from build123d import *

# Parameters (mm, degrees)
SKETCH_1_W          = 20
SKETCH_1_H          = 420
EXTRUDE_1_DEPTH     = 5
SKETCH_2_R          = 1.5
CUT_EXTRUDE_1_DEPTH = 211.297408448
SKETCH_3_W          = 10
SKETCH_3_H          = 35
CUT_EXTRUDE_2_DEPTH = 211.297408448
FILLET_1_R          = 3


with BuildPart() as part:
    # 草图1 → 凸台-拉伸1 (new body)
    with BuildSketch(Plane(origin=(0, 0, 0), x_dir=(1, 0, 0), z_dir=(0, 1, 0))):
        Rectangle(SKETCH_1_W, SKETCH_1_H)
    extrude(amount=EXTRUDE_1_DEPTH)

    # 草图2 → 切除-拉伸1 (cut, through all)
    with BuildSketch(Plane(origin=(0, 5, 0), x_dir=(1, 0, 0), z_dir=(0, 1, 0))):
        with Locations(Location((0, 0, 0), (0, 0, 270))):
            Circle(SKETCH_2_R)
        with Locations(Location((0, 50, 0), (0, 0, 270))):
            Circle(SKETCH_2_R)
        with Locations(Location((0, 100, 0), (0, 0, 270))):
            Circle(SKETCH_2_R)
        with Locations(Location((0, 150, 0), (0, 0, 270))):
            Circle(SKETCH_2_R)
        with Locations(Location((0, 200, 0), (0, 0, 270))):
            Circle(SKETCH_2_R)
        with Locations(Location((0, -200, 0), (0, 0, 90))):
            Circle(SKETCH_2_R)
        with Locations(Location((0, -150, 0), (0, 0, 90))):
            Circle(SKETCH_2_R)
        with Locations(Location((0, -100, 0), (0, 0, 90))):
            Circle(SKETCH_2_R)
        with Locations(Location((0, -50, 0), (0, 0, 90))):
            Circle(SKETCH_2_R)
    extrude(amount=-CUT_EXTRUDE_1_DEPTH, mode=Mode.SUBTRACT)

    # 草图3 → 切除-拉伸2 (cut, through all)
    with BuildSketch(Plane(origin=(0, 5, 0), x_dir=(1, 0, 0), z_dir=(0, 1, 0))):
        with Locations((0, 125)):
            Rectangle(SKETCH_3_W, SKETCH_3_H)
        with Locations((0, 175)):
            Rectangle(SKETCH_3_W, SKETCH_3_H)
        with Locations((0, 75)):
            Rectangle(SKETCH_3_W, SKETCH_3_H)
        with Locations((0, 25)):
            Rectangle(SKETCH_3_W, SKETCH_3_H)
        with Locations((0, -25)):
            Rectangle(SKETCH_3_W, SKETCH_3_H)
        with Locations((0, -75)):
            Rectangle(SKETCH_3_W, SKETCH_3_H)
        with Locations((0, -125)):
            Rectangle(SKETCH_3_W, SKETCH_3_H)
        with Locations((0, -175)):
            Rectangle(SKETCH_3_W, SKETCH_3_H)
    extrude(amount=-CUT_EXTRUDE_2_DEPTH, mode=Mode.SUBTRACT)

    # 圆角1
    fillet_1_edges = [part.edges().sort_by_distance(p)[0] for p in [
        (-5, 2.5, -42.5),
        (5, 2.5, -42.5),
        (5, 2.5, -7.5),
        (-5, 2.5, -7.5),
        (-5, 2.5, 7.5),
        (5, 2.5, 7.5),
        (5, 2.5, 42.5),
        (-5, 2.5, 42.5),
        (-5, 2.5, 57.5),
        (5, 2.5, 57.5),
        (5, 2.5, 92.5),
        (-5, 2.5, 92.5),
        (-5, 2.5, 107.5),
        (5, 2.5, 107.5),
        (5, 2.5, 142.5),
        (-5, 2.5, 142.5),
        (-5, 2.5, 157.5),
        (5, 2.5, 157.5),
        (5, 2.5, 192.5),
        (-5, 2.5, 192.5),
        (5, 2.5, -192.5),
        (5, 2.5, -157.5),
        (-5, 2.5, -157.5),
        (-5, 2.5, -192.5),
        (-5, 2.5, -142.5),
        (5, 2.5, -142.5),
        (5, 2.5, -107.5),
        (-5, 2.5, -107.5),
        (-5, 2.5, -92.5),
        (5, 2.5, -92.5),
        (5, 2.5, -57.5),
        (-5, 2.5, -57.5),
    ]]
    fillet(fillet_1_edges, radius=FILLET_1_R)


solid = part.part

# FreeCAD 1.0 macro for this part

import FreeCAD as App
import Part
import Sketcher
from FreeCAD import Vector


def edges_at(feature, points):
    """Names of the edges that pass closest to the given points."""
    edges = feature.Shape.Edges
    near = lambda p: min(range(len(edges)), key=lambda i: edges[i].distToShape(Part.Vertex(*p))[0])
    return sorted({f"Edge{near(p) + 1}" for p in points})

doc = App.newDocument("Part")
body = doc.addObject("PartDesign::Body", "Body")

sketch1 = body.newObject("Sketcher::SketchObject", "Sketch")
sketch1.AttachmentSupport = (doc.getObject("XZ_Plane"), [""])
sketch1.MapMode = "FlatFace"
sketch1.addGeometry([
    Part.LineSegment(Vector(-10, -210, 0), Vector(-10, 210, 0)),
    Part.LineSegment(Vector(-10, 210, 0), Vector(10, 210, 0)),
    Part.LineSegment(Vector(10, 210, 0), Vector(10, -210, 0)),
    Part.LineSegment(Vector(10, -210, 0), Vector(-10, -210, 0)),
], False)
sketch1.addConstraint([
    Sketcher.Constraint("Coincident", 0, 2, 1, 1),
    Sketcher.Constraint("Coincident", 1, 2, 2, 1),
    Sketcher.Constraint("Coincident", 2, 2, 3, 1),
    Sketcher.Constraint("Coincident", 3, 2, 0, 1),
    Sketcher.Constraint("Vertical", 0),
    Sketcher.Constraint("Horizontal", 1),
    Sketcher.Constraint("Vertical", 2),
    Sketcher.Constraint("Horizontal", 3),
    Sketcher.Constraint("Symmetric", 0, 2, 2, 2, -1, 1),
    Sketcher.Constraint("DistanceX", 1, 1, 1, 2, 20.0),
    Sketcher.Constraint("DistanceY", 0, 1, 0, 2, 420.0),
])
pad1 = body.newObject("PartDesign::Pad", "Pad")
pad1.Profile = sketch1
pad1.Length = 5
pad1.Reversed = True

sketch2 = body.newObject("Sketcher::SketchObject", "Sketch001")
sketch2.AttachmentSupport = (doc.getObject("XZ_Plane"), [""])
sketch2.MapMode = "FlatFace"
sketch2.AttachmentOffset = App.Placement(Vector(0, 0, -5), App.Rotation())
sketch2.addGeometry([
    Part.Circle(Vector(0, 0, 0), Vector(0, 0, 1), 1.5),
    Part.Circle(Vector(0, -50, 0), Vector(0, 0, 1), 1.5),
    Part.Circle(Vector(0, -100, 0), Vector(0, 0, 1), 1.5),
    Part.Circle(Vector(0, -150, 0), Vector(0, 0, 1), 1.5),
    Part.Circle(Vector(0, -200, 0), Vector(0, 0, 1), 1.5),
    Part.Circle(Vector(0, 200, 0), Vector(0, 0, 1), 1.5),
    Part.Circle(Vector(0, 150, 0), Vector(0, 0, 1), 1.5),
    Part.Circle(Vector(0, 100, 0), Vector(0, 0, 1), 1.5),
    Part.Circle(Vector(0, 50, 0), Vector(0, 0, 1), 1.5),
], False)
sketch2.addConstraint([
    Sketcher.Constraint("Coincident", 0, 3, -1, 1),
    Sketcher.Constraint("Equal", 0, 1),
    Sketcher.Constraint("Equal", 1, 2),
    Sketcher.Constraint("Equal", 2, 3),
    Sketcher.Constraint("Equal", 3, 4),
    Sketcher.Constraint("Equal", 4, 5),
    Sketcher.Constraint("Equal", 5, 6),
    Sketcher.Constraint("Equal", 6, 7),
    Sketcher.Constraint("Equal", 7, 8),
    Sketcher.Constraint("Symmetric", 4, 3, 5, 3, -1, 1),
    Sketcher.Constraint("Symmetric", 3, 3, 6, 3, -1, 1),
    Sketcher.Constraint("Symmetric", 2, 3, 7, 3, -1, 1),
    Sketcher.Constraint("Symmetric", 1, 3, 8, 3, -1, 1),
    Sketcher.Constraint("PointOnObject", 1, 3, -2),
    Sketcher.Constraint("PointOnObject", 2, 3, -2),
    Sketcher.Constraint("PointOnObject", 3, 3, -2),
    Sketcher.Constraint("PointOnObject", 4, 3, -2),
    Sketcher.Constraint("Diameter", 0, 3.0),
    Sketcher.Constraint("DistanceY", 1, 3, -1, 1, 50.0),
    Sketcher.Constraint("DistanceY", 2, 3, -1, 1, 100.0),
    Sketcher.Constraint("DistanceY", 3, 3, -1, 1, 150.0),
    Sketcher.Constraint("DistanceY", 4, 3, -1, 1, 200.0),
])
pocket1 = body.newObject("PartDesign::Pocket", "Pocket")
pocket1.Profile = sketch2
pocket1.Type = "ThroughAll"
pocket1.Reversed = True

sketch3 = body.newObject("Sketcher::SketchObject", "Sketch002")
sketch3.AttachmentSupport = (doc.getObject("XZ_Plane"), [""])
sketch3.MapMode = "FlatFace"
sketch3.AttachmentOffset = App.Placement(Vector(0, 0, -5), App.Rotation())
sketch3.addGeometry([
    Part.LineSegment(Vector(-5, -142, 0), Vector(-5, -108, 0)),
    Part.LineSegment(Vector(-5, -108, 0), Vector(5, -108, 0)),
    Part.LineSegment(Vector(5, -108, 0), Vector(5, -142, 0)),
    Part.LineSegment(Vector(5, -142, 0), Vector(-5, -142, 0)),
    Part.LineSegment(Vector(-5, -192, 0), Vector(-5, -158, 0)),
    Part.LineSegment(Vector(-5, -158, 0), Vector(5, -158, 0)),
    Part.LineSegment(Vector(5, -158, 0), Vector(5, -192, 0)),
    Part.LineSegment(Vector(5, -192, 0), Vector(-5, -192, 0)),
    Part.LineSegment(Vector(-5, -92, 0), Vector(-5, -58, 0)),
    Part.LineSegment(Vector(-5, -58, 0), Vector(5, -58, 0)),
    Part.LineSegment(Vector(5, -58, 0), Vector(5, -92, 0)),
    Part.LineSegment(Vector(5, -92, 0), Vector(-5, -92, 0)),
    Part.LineSegment(Vector(-5, -42, 0), Vector(-5, -8, 0)),
    Part.LineSegment(Vector(-5, -8, 0), Vector(5, -8, 0)),
    Part.LineSegment(Vector(5, -8, 0), Vector(5, -42, 0)),
    Part.LineSegment(Vector(5, -42, 0), Vector(-5, -42, 0)),
    Part.LineSegment(Vector(-5, 8, 0), Vector(-5, 42, 0)),
    Part.LineSegment(Vector(-5, 42, 0), Vector(5, 42, 0)),
    Part.LineSegment(Vector(5, 42, 0), Vector(5, 8, 0)),
    Part.LineSegment(Vector(5, 8, 0), Vector(-5, 8, 0)),
    Part.LineSegment(Vector(-5, 58, 0), Vector(-5, 92, 0)),
    Part.LineSegment(Vector(-5, 92, 0), Vector(5, 92, 0)),
    Part.LineSegment(Vector(5, 92, 0), Vector(5, 58, 0)),
    Part.LineSegment(Vector(5, 58, 0), Vector(-5, 58, 0)),
    Part.LineSegment(Vector(-5, 108, 0), Vector(-5, 142, 0)),
    Part.LineSegment(Vector(-5, 142, 0), Vector(5, 142, 0)),
    Part.LineSegment(Vector(5, 142, 0), Vector(5, 108, 0)),
    Part.LineSegment(Vector(5, 108, 0), Vector(-5, 108, 0)),
    Part.LineSegment(Vector(-5, 158, 0), Vector(-5, 192, 0)),
    Part.LineSegment(Vector(-5, 192, 0), Vector(5, 192, 0)),
    Part.LineSegment(Vector(5, 192, 0), Vector(5, 158, 0)),
    Part.LineSegment(Vector(5, 158, 0), Vector(-5, 158, 0)),
], False)
sketch3.addConstraint([
    Sketcher.Constraint("Coincident", 0, 2, 1, 1),
    Sketcher.Constraint("Coincident", 1, 2, 2, 1),
    Sketcher.Constraint("Coincident", 2, 2, 3, 1),
    Sketcher.Constraint("Coincident", 3, 2, 0, 1),
    Sketcher.Constraint("Coincident", 4, 2, 5, 1),
    Sketcher.Constraint("Coincident", 5, 2, 6, 1),
    Sketcher.Constraint("Coincident", 6, 2, 7, 1),
    Sketcher.Constraint("Coincident", 7, 2, 4, 1),
    Sketcher.Constraint("Coincident", 8, 2, 9, 1),
    Sketcher.Constraint("Coincident", 9, 2, 10, 1),
    Sketcher.Constraint("Coincident", 10, 2, 11, 1),
    Sketcher.Constraint("Coincident", 11, 2, 8, 1),
    Sketcher.Constraint("Coincident", 12, 2, 13, 1),
    Sketcher.Constraint("Coincident", 13, 2, 14, 1),
    Sketcher.Constraint("Coincident", 14, 2, 15, 1),
    Sketcher.Constraint("Coincident", 15, 2, 12, 1),
    Sketcher.Constraint("Coincident", 16, 2, 17, 1),
    Sketcher.Constraint("Coincident", 17, 2, 18, 1),
    Sketcher.Constraint("Coincident", 18, 2, 19, 1),
    Sketcher.Constraint("Coincident", 19, 2, 16, 1),
    Sketcher.Constraint("Coincident", 20, 2, 21, 1),
    Sketcher.Constraint("Coincident", 21, 2, 22, 1),
    Sketcher.Constraint("Coincident", 22, 2, 23, 1),
    Sketcher.Constraint("Coincident", 23, 2, 20, 1),
    Sketcher.Constraint("Coincident", 24, 2, 25, 1),
    Sketcher.Constraint("Coincident", 25, 2, 26, 1),
    Sketcher.Constraint("Coincident", 26, 2, 27, 1),
    Sketcher.Constraint("Coincident", 27, 2, 24, 1),
    Sketcher.Constraint("Coincident", 28, 2, 29, 1),
    Sketcher.Constraint("Coincident", 29, 2, 30, 1),
    Sketcher.Constraint("Coincident", 30, 2, 31, 1),
    Sketcher.Constraint("Coincident", 31, 2, 28, 1),
    Sketcher.Constraint("Vertical", 0),
    Sketcher.Constraint("Horizontal", 1),
    Sketcher.Constraint("Vertical", 2),
    Sketcher.Constraint("Horizontal", 3),
    Sketcher.Constraint("Vertical", 4),
    Sketcher.Constraint("Horizontal", 5),
    Sketcher.Constraint("Vertical", 6),
    Sketcher.Constraint("Horizontal", 7),
    Sketcher.Constraint("Vertical", 8),
    Sketcher.Constraint("Horizontal", 9),
    Sketcher.Constraint("Vertical", 10),
    Sketcher.Constraint("Horizontal", 11),
    Sketcher.Constraint("Vertical", 12),
    Sketcher.Constraint("Horizontal", 13),
    Sketcher.Constraint("Vertical", 14),
    Sketcher.Constraint("Horizontal", 15),
    Sketcher.Constraint("Vertical", 16),
    Sketcher.Constraint("Horizontal", 17),
    Sketcher.Constraint("Vertical", 18),
    Sketcher.Constraint("Horizontal", 19),
    Sketcher.Constraint("Vertical", 20),
    Sketcher.Constraint("Horizontal", 21),
    Sketcher.Constraint("Vertical", 22),
    Sketcher.Constraint("Horizontal", 23),
    Sketcher.Constraint("Vertical", 24),
    Sketcher.Constraint("Horizontal", 25),
    Sketcher.Constraint("Vertical", 26),
    Sketcher.Constraint("Horizontal", 27),
    Sketcher.Constraint("Vertical", 28),
    Sketcher.Constraint("Horizontal", 29),
    Sketcher.Constraint("Vertical", 30),
    Sketcher.Constraint("Horizontal", 31),
    Sketcher.Constraint("Symmetric", 14, 2, 16, 2, -1, 1),
    Sketcher.Constraint("Symmetric", 12, 2, 18, 2, -1, 1),
    Sketcher.Constraint("Symmetric", 10, 2, 20, 2, -1, 1),
    Sketcher.Constraint("Symmetric", 8, 2, 22, 2, -1, 1),
    Sketcher.Constraint("Symmetric", 2, 2, 24, 2, -1, 1),
    Sketcher.Constraint("Symmetric", 0, 2, 26, 2, -1, 1),
    Sketcher.Constraint("Symmetric", 6, 2, 28, 2, -1, 1),
    Sketcher.Constraint("Symmetric", 4, 2, 30, 2, -1, 1),
    Sketcher.Constraint("Vertical", 3, 2, 4, 2),
    Sketcher.Constraint("Vertical", 2, 2, 5, 2),
    Sketcher.Constraint("Vertical", 7, 2, 8, 2),
    Sketcher.Constraint("Vertical", 6, 2, 9, 2),
    Sketcher.Constraint("Vertical", 11, 2, 12, 2),
    Sketcher.Constraint("Vertical", 10, 2, 13, 2),
    Sketcher.Constraint("Vertical", 15, 2, 16, 2),
    Sketcher.Constraint("Equal", 2, 4),
    Sketcher.Constraint("Equal", 6, 8),
    Sketcher.Constraint("Equal", 10, 12),
    Sketcher.Constraint("DistanceX", 1, 1, 1, 2, 10.0),
    Sketcher.Constraint("DistanceY", 0, 1, 0, 2, 35.0),
    Sketcher.Constraint("DistanceY", 4, 2, 3, 2, 15.0),
    Sketcher.Constraint("DistanceY", 0, 2, 8, 2, 50.0),
    Sketcher.Constraint("DistanceY", 8, 2, 12, 2, 50.0),
    Sketcher.Constraint("DistanceY", 12, 2, 16, 2, 50.0),
])
pocket2 = body.newObject("PartDesign::Pocket", "Pocket001")
pocket2.Profile = sketch3
pocket2.Type = "ThroughAll"
pocket2.Reversed = True
doc.recompute()

fillet = body.newObject("PartDesign::Fillet", "Fillet")
fillet.Base = (pocket2, edges_at(pocket2, [
    (-5, 2.5, -42.5),
    (5, 2.5, -42.5),
    (5, 2.5, -7.5),
    (-5, 2.5, -7.5),
    (-5, 2.5, 7.5),
    (5, 2.5, 7.5),
    (5, 2.5, 42.5),
    (-5, 2.5, 42.5),
    (-5, 2.5, 57.5),
    (5, 2.5, 57.5),
    (5, 2.5, 92.5),
    (-5, 2.5, 92.5),
    (-5, 2.5, 107.5),
    (5, 2.5, 107.5),
    (5, 2.5, 142.5),
    (-5, 2.5, 142.5),
    (-5, 2.5, 157.5),
    (5, 2.5, 157.5),
    (5, 2.5, 192.5),
    (-5, 2.5, 192.5),
    (5, 2.5, -192.5),
    (5, 2.5, -157.5),
    (-5, 2.5, -157.5),
    (-5, 2.5, -192.5),
    (-5, 2.5, -142.5),
    (5, 2.5, -142.5),
    (5, 2.5, -107.5),
    (-5, 2.5, -107.5),
    (-5, 2.5, -92.5),
    (5, 2.5, -92.5),
    (5, 2.5, -57.5),
    (-5, 2.5, -57.5),
]))
fillet.Radius = 3

doc.recompute()
